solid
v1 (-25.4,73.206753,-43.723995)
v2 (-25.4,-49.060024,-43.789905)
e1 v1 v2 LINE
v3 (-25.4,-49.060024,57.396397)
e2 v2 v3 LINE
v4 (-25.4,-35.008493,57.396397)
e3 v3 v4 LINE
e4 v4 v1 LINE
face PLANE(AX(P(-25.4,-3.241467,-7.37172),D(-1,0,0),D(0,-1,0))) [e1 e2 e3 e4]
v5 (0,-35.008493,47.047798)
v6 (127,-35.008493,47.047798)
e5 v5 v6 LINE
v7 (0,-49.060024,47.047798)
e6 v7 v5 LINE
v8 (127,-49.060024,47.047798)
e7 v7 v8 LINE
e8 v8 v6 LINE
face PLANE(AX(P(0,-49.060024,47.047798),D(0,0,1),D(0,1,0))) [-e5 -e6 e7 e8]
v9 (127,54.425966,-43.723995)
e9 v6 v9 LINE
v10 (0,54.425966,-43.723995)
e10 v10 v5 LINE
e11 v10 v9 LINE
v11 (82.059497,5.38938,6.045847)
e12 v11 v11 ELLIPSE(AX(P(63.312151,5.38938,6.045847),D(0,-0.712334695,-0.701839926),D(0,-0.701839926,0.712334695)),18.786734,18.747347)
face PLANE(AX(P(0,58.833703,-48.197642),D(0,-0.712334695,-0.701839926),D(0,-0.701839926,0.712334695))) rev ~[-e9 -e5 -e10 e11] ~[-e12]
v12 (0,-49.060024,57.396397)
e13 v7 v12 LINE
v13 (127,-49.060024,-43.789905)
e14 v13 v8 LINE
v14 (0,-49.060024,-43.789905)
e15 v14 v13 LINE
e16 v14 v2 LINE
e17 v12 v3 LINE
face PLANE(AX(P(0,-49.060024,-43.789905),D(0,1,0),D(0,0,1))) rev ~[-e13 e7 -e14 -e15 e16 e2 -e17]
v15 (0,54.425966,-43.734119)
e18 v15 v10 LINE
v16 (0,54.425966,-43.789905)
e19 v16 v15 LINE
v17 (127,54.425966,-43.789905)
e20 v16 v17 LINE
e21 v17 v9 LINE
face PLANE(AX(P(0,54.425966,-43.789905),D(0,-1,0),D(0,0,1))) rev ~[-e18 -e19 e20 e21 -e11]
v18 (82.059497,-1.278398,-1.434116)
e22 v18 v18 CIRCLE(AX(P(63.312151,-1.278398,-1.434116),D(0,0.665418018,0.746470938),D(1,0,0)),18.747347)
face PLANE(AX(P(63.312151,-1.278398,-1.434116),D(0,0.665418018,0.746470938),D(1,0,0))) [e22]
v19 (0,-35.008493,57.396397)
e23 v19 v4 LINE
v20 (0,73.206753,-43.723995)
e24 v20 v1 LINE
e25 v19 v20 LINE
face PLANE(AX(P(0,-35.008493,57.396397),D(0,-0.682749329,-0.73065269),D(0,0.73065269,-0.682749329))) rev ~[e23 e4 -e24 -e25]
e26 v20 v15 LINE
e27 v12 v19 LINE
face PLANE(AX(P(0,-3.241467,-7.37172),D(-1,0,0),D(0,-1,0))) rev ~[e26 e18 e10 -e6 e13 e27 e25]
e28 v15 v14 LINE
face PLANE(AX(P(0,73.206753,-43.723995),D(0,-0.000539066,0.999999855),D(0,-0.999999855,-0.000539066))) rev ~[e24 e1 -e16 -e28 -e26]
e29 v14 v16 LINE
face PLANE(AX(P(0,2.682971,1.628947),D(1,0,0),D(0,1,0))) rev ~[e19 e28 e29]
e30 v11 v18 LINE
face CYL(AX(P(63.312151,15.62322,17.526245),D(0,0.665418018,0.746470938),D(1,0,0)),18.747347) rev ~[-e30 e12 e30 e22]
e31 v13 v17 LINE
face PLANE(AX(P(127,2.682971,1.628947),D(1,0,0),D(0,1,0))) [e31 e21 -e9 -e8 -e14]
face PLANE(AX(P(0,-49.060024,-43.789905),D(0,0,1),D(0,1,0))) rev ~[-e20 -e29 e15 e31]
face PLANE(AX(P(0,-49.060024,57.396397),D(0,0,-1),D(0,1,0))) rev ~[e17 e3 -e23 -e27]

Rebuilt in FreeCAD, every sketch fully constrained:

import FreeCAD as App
import Part
import Sketcher
from FreeCAD import Vector
Q = App.Units.Quantity


def add_polygon(sketch, points):
    """Adds a closed chain of lines whose ends are joined by coincident constraints."""
    first, n = sketch.GeometryCount, len(points)
    for a, b in zip(points, points[1:] + points[:1]):
        sketch.addGeometry(Part.LineSegment(App.Vector(*a, 0), App.Vector(*b, 0)), False)
    for i in range(n):
        sketch.addConstraint(Sketcher.Constraint("Coincident", first + i, 2, first + (i + 1) % n, 1))

doc = App.newDocument("Part")
body = doc.addObject("PartDesign::Body", "Body")

# Sketch on YZ plane
sketch1 = doc.addObject("Sketcher::SketchObject", "Sketch")
body.addObject(sketch1)
sketch1.AttachmentSupport = (doc.YZ_Plane, [""])
sketch1.MapMode = "FlatFace"
add_polygon(sketch1, [(-49.060024, 47.047798), (-49.060024, -43.789905), (54.425966, -43.789905), (54.425966, 47.047798)])  # lines 0-3
sketch1.addConstraint(Sketcher.Constraint("Vertical", 0))
sketch1.addConstraint(Sketcher.Constraint("Horizontal", 1))
sketch1.addConstraint(Sketcher.Constraint("Vertical", 2))
sketch1.addConstraint(Sketcher.Constraint("Horizontal", 3))
sketch1.addConstraint(Sketcher.Constraint("DistanceX", 1, 1, 1, 2, Q("103.48599 mm")))
sketch1.addConstraint(Sketcher.Constraint("DistanceY", 0, 2, 0, 1, Q("90.837702 mm")))
sketch1.addConstraint(Sketcher.Constraint("DistanceX", 0, 2, -1, 1, Q("49.060024 mm")))
sketch1.addConstraint(Sketcher.Constraint("DistanceY", 0, 2, -1, 1, Q("43.789905 mm")))
pad1 = doc.addObject("PartDesign::Pad", "Pad")
body.addObject(pad1)
pad1.Profile = sketch1
pad1.Length = Q("5 in")

# Sketch on YZ plane
sketch2 = doc.addObject("Sketcher::SketchObject", "Sketch001")
body.addObject(sketch2)
sketch2.AttachmentSupport = (doc.YZ_Plane, [""])
sketch2.MapMode = "FlatFace"
sketch2.AttachmentOffset = App.Placement(Vector(0, 0, 5 * 25.4), App.Rotation())
add_polygon(sketch2, [(62.474873, 57.396397), (-45.227211, 71.769446), (64.199641, -25.775677)])  # lines 0-2
sketch2.addConstraint(Sketcher.Constraint("DistanceX", 0, 2, -1, 1, Q("45.227211 mm")))
sketch2.addConstraint(Sketcher.Constraint("DistanceX", -1, 1, 1, 2, Q("64.199641 mm")))
sketch2.addConstraint(Sketcher.Constraint("DistanceX", 2, 2, 1, 2, Q("1.724768 mm")))
sketch2.addConstraint(Sketcher.Constraint("DistanceY", 2, 2, 0, 2, Q("14.373049 mm")))
sketch2.addConstraint(Sketcher.Constraint("Distance", 1, Q("146.592247 mm")))
sketch2.addConstraint(Sketcher.Constraint("DistanceY", -1, 1, 0, 2, Q("71.769446 mm")))
pocket1 = doc.addObject("PartDesign::Pocket", "Pocket")
body.addObject(pocket1)
pocket1.Profile = sketch2
pocket1.Type = "ThroughAll"

# Sketch on an angled plane
sketch3 = doc.addObject("Sketcher::SketchObject", "Sketch002")
body.addObject(sketch3)
sketch3.Placement = App.Placement(Vector(0, 15.62322, 17.526245), App.Rotation(Vector(1, 0, 0), Vector(0, 0.746470938, -0.665418018), Vector(0, 0.665418018, 0.746470938), "ZXY"))
sketch3.addGeometry(Part.Circle(Vector(63.312151, 0, 0), Vector(0, 0, 1), 18.747347), False)
sketch3.addConstraint(Sketcher.Constraint("PointOnObject", 0, 3, -1))
sketch3.addConstraint(Sketcher.Constraint("Diameter", 0, Q("37.494694 mm")))
sketch3.addConstraint(Sketcher.Constraint("DistanceX", -1, 1, 0, 3, Q("63.312151 mm")))
pocket2 = doc.addObject("PartDesign::Pocket", "Pocket001")
body.addObject(pocket2)
pocket2.Profile = sketch3
pocket2.Length = Q("1 in")

# Sketch on YZ plane
sketch4 = doc.addObject("Sketcher::SketchObject", "Sketch003")
body.addObject(sketch4)
sketch4.AttachmentSupport = (doc.YZ_Plane, [""])
sketch4.MapMode = "FlatFace"
add_polygon(sketch4, [(58.833703, -48.197642), (-43.694086, 55.863269), (-45.802135, 72.536014), (54.425966, 13.510671)])  # lines 0-3
sketch4.addConstraint(Sketcher.Constraint("DistanceY", 2, 2, 0, 2, Q("42.352598 mm")))
sketch4.addConstraint(Sketcher.Constraint("DistanceX", 1, 2, 2, 2, Q("100.228101 mm")))
sketch4.addConstraint(Sketcher.Constraint("Distance", 2, Q("116.317081 mm")))
sketch4.addConstraint(Sketcher.Constraint("Distance", 3, Q("61.865531 mm")))
sketch4.addConstraint(Sketcher.Constraint("DistanceY", -1, 1, 0, 2, Q("55.863269 mm")))
sketch4.addConstraint(Sketcher.Constraint("DistanceY", 3, 2, -1, 1, Q("48.197642 mm")))
sketch4.addConstraint(Sketcher.Constraint("DistanceX", 1, 2, 0, 2, Q("2.108049 mm")))
sketch4.addConstraint(Sketcher.Constraint("DistanceX", 0, 2, -1, 1, Q("43.694086 mm")))
pocket3 = doc.addObject("PartDesign::Pocket", "Pocket002")
body.addObject(pocket3)
pocket3.Profile = sketch4
pocket3.Type = "ThroughAll"
pocket3.Reversed = True

# Sketch on YZ plane
sketch5 = doc.addObject("Sketcher::SketchObject", "Sketch004")
body.addObject(sketch5)
sketch5.AttachmentSupport = (doc.YZ_Plane, [""])
sketch5.MapMode = "FlatFace"
add_polygon(sketch5, [(-49.060024, -43.789905), (-49.060024, 57.396397), (-35.008493, 57.396397), (73.206753, -43.723995)])  # lines 0-3
sketch5.addConstraint(Sketcher.Constraint("Vertical", 0))
sketch5.addConstraint(Sketcher.Constraint("Horizontal", 1))
sketch5.addConstraint(Sketcher.Constraint("DistanceY", 0, 1, 0, 2, Q("101.186302 mm")))
sketch5.addConstraint(Sketcher.Constraint("DistanceX", 1, 1, 1, 2, Q("14.051531 mm")))
sketch5.addConstraint(Sketcher.Constraint("Distance", 2, Q("148.10764 mm")))
sketch5.addConstraint(Sketcher.Constraint("DistanceY", 2, 2, 1, 2, Q("101.120392 mm")))
sketch5.addConstraint(Sketcher.Constraint("DistanceX", 0, 2, -1, 1, Q("49.060024 mm")))
sketch5.addConstraint(Sketcher.Constraint("DistanceY", -1, 1, 0, 2, Q("57.396397 mm")))
pad2 = doc.addObject("PartDesign::Pad", "Pad001")
body.addObject(pad2)
pad2.Profile = sketch5
pad2.Length = Q("1 in")
pad2.Reversed = True

doc.recompute()
